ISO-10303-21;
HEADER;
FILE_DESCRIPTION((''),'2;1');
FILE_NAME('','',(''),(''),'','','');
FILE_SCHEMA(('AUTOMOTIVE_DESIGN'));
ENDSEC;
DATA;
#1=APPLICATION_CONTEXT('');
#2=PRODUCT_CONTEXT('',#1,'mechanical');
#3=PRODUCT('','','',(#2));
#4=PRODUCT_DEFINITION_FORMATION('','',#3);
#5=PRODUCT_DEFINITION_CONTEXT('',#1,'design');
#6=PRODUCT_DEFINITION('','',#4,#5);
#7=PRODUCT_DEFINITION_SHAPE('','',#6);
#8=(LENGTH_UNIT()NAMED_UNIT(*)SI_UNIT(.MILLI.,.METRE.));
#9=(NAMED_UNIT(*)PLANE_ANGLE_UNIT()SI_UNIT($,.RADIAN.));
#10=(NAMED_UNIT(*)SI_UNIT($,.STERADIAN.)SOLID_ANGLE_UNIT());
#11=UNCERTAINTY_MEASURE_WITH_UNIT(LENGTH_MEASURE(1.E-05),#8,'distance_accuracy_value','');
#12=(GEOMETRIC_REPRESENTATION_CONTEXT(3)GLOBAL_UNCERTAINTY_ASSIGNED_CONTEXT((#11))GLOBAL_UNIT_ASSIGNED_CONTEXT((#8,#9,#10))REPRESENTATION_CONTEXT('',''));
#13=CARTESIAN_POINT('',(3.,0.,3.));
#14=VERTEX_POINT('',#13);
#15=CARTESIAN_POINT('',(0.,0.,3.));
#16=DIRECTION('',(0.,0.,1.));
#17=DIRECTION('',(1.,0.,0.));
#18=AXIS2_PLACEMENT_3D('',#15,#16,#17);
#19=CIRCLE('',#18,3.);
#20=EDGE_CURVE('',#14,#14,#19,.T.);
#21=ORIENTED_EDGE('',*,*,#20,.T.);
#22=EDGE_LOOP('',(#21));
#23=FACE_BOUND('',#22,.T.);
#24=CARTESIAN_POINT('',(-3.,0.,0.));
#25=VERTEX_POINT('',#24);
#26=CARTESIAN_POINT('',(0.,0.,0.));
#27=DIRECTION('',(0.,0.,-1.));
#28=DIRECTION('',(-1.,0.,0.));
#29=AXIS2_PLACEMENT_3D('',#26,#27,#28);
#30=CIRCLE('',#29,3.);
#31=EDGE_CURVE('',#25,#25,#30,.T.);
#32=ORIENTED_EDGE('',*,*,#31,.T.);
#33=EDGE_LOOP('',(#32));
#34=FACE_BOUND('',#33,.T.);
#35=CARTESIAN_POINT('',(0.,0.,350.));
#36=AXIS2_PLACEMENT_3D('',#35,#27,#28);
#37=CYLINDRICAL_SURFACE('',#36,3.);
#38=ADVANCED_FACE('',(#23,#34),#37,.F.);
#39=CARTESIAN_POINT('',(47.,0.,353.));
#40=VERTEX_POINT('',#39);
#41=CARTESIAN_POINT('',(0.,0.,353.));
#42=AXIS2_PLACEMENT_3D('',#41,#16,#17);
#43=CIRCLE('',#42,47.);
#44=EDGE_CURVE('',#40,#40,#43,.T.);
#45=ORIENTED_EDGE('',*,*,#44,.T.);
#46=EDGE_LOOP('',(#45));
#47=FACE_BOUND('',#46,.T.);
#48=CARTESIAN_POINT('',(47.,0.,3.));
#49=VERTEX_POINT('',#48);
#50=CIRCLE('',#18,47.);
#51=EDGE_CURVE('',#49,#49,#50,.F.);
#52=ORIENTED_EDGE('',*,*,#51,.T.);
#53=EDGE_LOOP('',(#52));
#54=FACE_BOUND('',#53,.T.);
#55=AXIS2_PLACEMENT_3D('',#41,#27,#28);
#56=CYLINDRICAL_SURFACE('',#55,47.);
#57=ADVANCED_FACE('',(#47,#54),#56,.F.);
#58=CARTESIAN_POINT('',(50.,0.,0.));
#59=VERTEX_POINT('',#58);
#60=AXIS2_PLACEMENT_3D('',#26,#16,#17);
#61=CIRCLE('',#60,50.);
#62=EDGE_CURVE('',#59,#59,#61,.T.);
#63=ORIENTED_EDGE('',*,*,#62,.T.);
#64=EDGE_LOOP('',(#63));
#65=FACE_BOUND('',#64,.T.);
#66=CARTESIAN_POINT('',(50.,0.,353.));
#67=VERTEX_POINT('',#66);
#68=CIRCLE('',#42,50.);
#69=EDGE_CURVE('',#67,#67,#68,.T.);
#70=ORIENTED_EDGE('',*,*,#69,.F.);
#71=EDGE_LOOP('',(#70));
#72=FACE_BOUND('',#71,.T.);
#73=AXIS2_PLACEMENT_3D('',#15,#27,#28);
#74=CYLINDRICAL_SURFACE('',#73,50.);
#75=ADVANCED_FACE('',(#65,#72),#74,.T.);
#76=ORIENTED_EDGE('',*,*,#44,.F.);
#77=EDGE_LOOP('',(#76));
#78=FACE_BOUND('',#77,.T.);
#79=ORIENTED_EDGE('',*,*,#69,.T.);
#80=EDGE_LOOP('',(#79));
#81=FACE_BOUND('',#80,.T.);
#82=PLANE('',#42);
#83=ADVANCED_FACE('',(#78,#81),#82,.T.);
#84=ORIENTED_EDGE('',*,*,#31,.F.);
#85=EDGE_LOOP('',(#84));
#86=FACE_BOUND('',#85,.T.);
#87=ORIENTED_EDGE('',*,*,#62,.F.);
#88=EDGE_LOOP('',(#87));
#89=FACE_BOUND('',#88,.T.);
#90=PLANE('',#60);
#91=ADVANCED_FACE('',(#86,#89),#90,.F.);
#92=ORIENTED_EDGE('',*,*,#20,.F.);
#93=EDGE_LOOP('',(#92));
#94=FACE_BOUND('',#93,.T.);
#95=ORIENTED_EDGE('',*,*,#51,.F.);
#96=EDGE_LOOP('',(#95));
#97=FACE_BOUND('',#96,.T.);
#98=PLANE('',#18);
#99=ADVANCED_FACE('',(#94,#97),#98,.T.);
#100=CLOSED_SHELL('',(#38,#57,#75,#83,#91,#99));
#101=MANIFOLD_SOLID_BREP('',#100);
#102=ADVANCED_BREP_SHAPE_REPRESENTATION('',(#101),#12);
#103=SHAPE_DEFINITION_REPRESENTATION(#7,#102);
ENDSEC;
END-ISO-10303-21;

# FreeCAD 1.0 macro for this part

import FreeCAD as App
import Part
import Sketcher

V = App.Vector

doc = App.newDocument("Part")
params = doc.addObject("Spreadsheet::Sheet", "Params")
for row, (alias, value) in enumerate([
    ("sketch1_diameter", "100 mm"),
    ("pad1_length", "3 mm"),
    ("sketch2_diameter", "100 mm"),
    ("sketch2_diameter2", "94 mm"),
    ("pad2_length", "350 mm"),
    ("sketch3_diameter", "6 mm"),
    ("pocket1_length", "350 mm"),
], start=1):
    params.set(f"A{row}", alias)
    params.set(f"B{row}", "=" + value)
    params.setAlias(f"B{row}", alias)

body = doc.addObject("PartDesign::Body", "Body")

# Sketch on XY plane
sketch1 = body.newObject("Sketcher::SketchObject", "Sketch")
sketch1.AttachmentSupport = (doc.getObject("XY_Plane"), [""])
sketch1.MapMode = "FlatFace"
sketch1.addGeometry(Part.Circle(V(0, 0, 0), V(0, 0, 1), 50), False)
sketch1.addConstraint([
    Sketcher.Constraint("Coincident", 0, 3, -1, 1),
    Sketcher.Constraint("Diameter", 0, 100.0),
])
sketch1.setExpression("Constraints[1]", "Params.sketch1_diameter")
pad1 = body.newObject("PartDesign::Pad", "Pad")
pad1.Profile = sketch1
pad1.setExpression("Length", "Params.pad1_length")

# Sketch on XY plane
sketch2 = body.newObject("Sketcher::SketchObject", "Sketch001")
sketch2.AttachmentSupport = (doc.getObject("XY_Plane"), [""])
sketch2.MapMode = "FlatFace"
sketch2.AttachmentOffset = App.Placement(V(0, 0, 3), App.Rotation())
sketch2.addGeometry([
    Part.Circle(V(0, 0, 0), V(0, 0, 1), 50),
    Part.Circle(V(0, 0, 0), V(0, 0, 1), 47),
], False)
sketch2.addConstraint([
    Sketcher.Constraint("Coincident", 0, 3, -1, 1),
    Sketcher.Constraint("Coincident", 1, 3, -1, 1),
    Sketcher.Constraint("Diameter", 0, 100.0),
    Sketcher.Constraint("Diameter", 1, 94.0),
])
sketch2.setExpression("Constraints[2]", "Params.sketch2_diameter")
sketch2.setExpression("Constraints[3]", "Params.sketch2_diameter2")
pad2 = body.newObject("PartDesign::Pad", "Pad001")
pad2.Profile = sketch2
pad2.setExpression("Length", "Params.pad2_length")

# Sketch on XY plane
sketch3 = body.newObject("Sketcher::SketchObject", "Sketch002")
sketch3.AttachmentSupport = (doc.getObject("XY_Plane"), [""])
sketch3.MapMode = "FlatFace"
sketch3.addGeometry(Part.Circle(V(0, 0, 0), V(0, 0, 1), 3), False)
sketch3.addConstraint([
    Sketcher.Constraint("Coincident", 0, 3, -1, 1),
    Sketcher.Constraint("Diameter", 0, 6.0),
])
sketch3.setExpression("Constraints[1]", "Params.sketch3_diameter")
pocket1 = body.newObject("PartDesign::Pocket", "Pocket")
pocket1.Profile = sketch3
pocket1.setExpression("Length", "Params.pocket1_length")
pocket1.Reversed = True

doc.recompute()
